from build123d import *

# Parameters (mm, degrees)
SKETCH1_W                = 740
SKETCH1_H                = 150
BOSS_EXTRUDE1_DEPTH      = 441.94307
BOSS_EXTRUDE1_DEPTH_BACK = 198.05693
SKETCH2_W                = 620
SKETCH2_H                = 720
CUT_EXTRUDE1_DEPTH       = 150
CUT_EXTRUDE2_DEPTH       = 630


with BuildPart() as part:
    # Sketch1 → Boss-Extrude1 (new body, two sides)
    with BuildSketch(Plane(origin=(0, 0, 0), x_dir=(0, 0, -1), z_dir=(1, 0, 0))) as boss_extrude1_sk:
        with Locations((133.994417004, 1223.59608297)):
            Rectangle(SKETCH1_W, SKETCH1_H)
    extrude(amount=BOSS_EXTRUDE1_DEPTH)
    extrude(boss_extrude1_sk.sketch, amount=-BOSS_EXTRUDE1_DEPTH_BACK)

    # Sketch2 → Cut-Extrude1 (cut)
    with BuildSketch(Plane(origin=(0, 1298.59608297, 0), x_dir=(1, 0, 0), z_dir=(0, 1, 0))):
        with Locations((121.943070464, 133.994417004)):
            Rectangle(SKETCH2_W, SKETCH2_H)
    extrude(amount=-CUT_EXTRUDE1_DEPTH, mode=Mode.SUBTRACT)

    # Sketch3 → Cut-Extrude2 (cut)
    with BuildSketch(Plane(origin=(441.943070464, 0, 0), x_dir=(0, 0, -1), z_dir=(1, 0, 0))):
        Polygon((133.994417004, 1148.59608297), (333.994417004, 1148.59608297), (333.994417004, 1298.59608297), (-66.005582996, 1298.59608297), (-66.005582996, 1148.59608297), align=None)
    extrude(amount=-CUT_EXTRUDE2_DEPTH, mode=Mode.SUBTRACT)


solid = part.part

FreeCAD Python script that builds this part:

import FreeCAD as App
import Part
import Sketcher
Q = App.Units.Quantity


def add_polygon(sketch, points):
    """Adds a closed chain of lines whose ends are joined by coincident constraints."""
    first, n = sketch.GeometryCount, len(points)
    for a, b in zip(points, points[1:] + points[:1]):
        sketch.addGeometry(Part.LineSegment(App.Vector(*a, 0), App.Vector(*b, 0)), False)
    for i in range(n):
        sketch.addConstraint(Sketcher.Constraint("Coincident", first + i, 2, first + (i + 1) % n, 1))

doc = App.newDocument("Part")
body = doc.addObject("PartDesign::Body", "Body")

sketch1 = body.newObject("Sketcher::SketchObject", "Sketch")
sketch1.AttachmentSupport = (doc.getObject("YZ_Plane"), [""])
sketch1.MapMode = "FlatFace"
add_polygon(sketch1, [(1299, 236), (1149, 236), (1149, -504), (1299, -504)])
sketch1.addConstraint([
    Sketcher.Constraint("Horizontal", 0),
    Sketcher.Constraint("Vertical", 1),
    Sketcher.Constraint("Horizontal", 2),
    Sketcher.Constraint("Vertical", 3),
    Sketcher.Constraint("DistanceX", 0, 2, 0, 1, Q("150 mm")),
    Sketcher.Constraint("DistanceY", 1, 2, 1, 1, Q("740 mm")),
    Sketcher.Constraint("DistanceX", -1, 1, 0, 2, Q("1148.596083 mm")),
    Sketcher.Constraint("DistanceY", -1, 1, 0, 2, Q("236.005583 mm")),
])
pad1 = body.newObject("PartDesign::Pad", "Pad")
pad1.Profile = sketch1
pad1.Type = "TwoLengths"
pad1.Length = 441.94307
pad1.Length2 = 198.05693

sketch2 = body.newObject("Sketcher::SketchObject", "Sketch001")
sketch2.AttachmentSupport = (doc.getObject("XZ_Plane"), [""])
sketch2.MapMode = "FlatFace"
sketch2.AttachmentOffset = App.Placement(App.Vector(0, 0, -1298.596083), App.Rotation())
add_polygon(sketch2, [(-188, -494), (-188, 226), (432, 226), (432, -494)])
sketch2.addConstraint([
    Sketcher.Constraint("Vertical", 0),
    Sketcher.Constraint("Horizontal", 1),
    Sketcher.Constraint("Vertical", 2),
    Sketcher.Constraint("Horizontal", 3),
    Sketcher.Constraint("DistanceX", 1, 1, 1, 2, Q("620 mm")),
    Sketcher.Constraint("DistanceY", 0, 1, 0, 2, Q("720 mm")),
    Sketcher.Constraint("DistanceX", 0, 2, -1, 1, Q("188.05693 mm")),
    Sketcher.Constraint("DistanceY", -1, 1, 0, 2, Q("226.005583 mm")),
])
pocket1 = body.newObject("PartDesign::Pocket", "Pocket")
pocket1.Profile = sketch2
pocket1.Length = 150
pocket1.Reversed = True

sketch3 = body.newObject("Sketcher::SketchObject", "Sketch002")
sketch3.AttachmentSupport = (doc.getObject("YZ_Plane"), [""])
sketch3.MapMode = "FlatFace"
sketch3.AttachmentOffset = App.Placement(App.Vector(0, 0, 441.94307), App.Rotation())
add_polygon(sketch3, [(1149, -334), (1299, -334), (1299, 66), (1149, 66)])
sketch3.addConstraint([
    Sketcher.Constraint("Horizontal", 0),
    Sketcher.Constraint("Vertical", 1),
    Sketcher.Constraint("Horizontal", 2),
    Sketcher.Constraint("Vertical", 3),
    Sketcher.Constraint("DistanceX", 0, 1, 0, 2, Q("150 mm")),
    Sketcher.Constraint("DistanceY", 1, 1, 1, 2, Q("400 mm")),
    Sketcher.Constraint("DistanceX", -1, 1, 0, 2, Q("1298.596083 mm")),
    Sketcher.Constraint("DistanceY", 0, 2, -1, 1, Q("333.994417 mm")),
])
pocket2 = body.newObject("PartDesign::Pocket", "Pocket001")
pocket2.Profile = sketch3
pocket2.Length = 630

doc.recompute()
